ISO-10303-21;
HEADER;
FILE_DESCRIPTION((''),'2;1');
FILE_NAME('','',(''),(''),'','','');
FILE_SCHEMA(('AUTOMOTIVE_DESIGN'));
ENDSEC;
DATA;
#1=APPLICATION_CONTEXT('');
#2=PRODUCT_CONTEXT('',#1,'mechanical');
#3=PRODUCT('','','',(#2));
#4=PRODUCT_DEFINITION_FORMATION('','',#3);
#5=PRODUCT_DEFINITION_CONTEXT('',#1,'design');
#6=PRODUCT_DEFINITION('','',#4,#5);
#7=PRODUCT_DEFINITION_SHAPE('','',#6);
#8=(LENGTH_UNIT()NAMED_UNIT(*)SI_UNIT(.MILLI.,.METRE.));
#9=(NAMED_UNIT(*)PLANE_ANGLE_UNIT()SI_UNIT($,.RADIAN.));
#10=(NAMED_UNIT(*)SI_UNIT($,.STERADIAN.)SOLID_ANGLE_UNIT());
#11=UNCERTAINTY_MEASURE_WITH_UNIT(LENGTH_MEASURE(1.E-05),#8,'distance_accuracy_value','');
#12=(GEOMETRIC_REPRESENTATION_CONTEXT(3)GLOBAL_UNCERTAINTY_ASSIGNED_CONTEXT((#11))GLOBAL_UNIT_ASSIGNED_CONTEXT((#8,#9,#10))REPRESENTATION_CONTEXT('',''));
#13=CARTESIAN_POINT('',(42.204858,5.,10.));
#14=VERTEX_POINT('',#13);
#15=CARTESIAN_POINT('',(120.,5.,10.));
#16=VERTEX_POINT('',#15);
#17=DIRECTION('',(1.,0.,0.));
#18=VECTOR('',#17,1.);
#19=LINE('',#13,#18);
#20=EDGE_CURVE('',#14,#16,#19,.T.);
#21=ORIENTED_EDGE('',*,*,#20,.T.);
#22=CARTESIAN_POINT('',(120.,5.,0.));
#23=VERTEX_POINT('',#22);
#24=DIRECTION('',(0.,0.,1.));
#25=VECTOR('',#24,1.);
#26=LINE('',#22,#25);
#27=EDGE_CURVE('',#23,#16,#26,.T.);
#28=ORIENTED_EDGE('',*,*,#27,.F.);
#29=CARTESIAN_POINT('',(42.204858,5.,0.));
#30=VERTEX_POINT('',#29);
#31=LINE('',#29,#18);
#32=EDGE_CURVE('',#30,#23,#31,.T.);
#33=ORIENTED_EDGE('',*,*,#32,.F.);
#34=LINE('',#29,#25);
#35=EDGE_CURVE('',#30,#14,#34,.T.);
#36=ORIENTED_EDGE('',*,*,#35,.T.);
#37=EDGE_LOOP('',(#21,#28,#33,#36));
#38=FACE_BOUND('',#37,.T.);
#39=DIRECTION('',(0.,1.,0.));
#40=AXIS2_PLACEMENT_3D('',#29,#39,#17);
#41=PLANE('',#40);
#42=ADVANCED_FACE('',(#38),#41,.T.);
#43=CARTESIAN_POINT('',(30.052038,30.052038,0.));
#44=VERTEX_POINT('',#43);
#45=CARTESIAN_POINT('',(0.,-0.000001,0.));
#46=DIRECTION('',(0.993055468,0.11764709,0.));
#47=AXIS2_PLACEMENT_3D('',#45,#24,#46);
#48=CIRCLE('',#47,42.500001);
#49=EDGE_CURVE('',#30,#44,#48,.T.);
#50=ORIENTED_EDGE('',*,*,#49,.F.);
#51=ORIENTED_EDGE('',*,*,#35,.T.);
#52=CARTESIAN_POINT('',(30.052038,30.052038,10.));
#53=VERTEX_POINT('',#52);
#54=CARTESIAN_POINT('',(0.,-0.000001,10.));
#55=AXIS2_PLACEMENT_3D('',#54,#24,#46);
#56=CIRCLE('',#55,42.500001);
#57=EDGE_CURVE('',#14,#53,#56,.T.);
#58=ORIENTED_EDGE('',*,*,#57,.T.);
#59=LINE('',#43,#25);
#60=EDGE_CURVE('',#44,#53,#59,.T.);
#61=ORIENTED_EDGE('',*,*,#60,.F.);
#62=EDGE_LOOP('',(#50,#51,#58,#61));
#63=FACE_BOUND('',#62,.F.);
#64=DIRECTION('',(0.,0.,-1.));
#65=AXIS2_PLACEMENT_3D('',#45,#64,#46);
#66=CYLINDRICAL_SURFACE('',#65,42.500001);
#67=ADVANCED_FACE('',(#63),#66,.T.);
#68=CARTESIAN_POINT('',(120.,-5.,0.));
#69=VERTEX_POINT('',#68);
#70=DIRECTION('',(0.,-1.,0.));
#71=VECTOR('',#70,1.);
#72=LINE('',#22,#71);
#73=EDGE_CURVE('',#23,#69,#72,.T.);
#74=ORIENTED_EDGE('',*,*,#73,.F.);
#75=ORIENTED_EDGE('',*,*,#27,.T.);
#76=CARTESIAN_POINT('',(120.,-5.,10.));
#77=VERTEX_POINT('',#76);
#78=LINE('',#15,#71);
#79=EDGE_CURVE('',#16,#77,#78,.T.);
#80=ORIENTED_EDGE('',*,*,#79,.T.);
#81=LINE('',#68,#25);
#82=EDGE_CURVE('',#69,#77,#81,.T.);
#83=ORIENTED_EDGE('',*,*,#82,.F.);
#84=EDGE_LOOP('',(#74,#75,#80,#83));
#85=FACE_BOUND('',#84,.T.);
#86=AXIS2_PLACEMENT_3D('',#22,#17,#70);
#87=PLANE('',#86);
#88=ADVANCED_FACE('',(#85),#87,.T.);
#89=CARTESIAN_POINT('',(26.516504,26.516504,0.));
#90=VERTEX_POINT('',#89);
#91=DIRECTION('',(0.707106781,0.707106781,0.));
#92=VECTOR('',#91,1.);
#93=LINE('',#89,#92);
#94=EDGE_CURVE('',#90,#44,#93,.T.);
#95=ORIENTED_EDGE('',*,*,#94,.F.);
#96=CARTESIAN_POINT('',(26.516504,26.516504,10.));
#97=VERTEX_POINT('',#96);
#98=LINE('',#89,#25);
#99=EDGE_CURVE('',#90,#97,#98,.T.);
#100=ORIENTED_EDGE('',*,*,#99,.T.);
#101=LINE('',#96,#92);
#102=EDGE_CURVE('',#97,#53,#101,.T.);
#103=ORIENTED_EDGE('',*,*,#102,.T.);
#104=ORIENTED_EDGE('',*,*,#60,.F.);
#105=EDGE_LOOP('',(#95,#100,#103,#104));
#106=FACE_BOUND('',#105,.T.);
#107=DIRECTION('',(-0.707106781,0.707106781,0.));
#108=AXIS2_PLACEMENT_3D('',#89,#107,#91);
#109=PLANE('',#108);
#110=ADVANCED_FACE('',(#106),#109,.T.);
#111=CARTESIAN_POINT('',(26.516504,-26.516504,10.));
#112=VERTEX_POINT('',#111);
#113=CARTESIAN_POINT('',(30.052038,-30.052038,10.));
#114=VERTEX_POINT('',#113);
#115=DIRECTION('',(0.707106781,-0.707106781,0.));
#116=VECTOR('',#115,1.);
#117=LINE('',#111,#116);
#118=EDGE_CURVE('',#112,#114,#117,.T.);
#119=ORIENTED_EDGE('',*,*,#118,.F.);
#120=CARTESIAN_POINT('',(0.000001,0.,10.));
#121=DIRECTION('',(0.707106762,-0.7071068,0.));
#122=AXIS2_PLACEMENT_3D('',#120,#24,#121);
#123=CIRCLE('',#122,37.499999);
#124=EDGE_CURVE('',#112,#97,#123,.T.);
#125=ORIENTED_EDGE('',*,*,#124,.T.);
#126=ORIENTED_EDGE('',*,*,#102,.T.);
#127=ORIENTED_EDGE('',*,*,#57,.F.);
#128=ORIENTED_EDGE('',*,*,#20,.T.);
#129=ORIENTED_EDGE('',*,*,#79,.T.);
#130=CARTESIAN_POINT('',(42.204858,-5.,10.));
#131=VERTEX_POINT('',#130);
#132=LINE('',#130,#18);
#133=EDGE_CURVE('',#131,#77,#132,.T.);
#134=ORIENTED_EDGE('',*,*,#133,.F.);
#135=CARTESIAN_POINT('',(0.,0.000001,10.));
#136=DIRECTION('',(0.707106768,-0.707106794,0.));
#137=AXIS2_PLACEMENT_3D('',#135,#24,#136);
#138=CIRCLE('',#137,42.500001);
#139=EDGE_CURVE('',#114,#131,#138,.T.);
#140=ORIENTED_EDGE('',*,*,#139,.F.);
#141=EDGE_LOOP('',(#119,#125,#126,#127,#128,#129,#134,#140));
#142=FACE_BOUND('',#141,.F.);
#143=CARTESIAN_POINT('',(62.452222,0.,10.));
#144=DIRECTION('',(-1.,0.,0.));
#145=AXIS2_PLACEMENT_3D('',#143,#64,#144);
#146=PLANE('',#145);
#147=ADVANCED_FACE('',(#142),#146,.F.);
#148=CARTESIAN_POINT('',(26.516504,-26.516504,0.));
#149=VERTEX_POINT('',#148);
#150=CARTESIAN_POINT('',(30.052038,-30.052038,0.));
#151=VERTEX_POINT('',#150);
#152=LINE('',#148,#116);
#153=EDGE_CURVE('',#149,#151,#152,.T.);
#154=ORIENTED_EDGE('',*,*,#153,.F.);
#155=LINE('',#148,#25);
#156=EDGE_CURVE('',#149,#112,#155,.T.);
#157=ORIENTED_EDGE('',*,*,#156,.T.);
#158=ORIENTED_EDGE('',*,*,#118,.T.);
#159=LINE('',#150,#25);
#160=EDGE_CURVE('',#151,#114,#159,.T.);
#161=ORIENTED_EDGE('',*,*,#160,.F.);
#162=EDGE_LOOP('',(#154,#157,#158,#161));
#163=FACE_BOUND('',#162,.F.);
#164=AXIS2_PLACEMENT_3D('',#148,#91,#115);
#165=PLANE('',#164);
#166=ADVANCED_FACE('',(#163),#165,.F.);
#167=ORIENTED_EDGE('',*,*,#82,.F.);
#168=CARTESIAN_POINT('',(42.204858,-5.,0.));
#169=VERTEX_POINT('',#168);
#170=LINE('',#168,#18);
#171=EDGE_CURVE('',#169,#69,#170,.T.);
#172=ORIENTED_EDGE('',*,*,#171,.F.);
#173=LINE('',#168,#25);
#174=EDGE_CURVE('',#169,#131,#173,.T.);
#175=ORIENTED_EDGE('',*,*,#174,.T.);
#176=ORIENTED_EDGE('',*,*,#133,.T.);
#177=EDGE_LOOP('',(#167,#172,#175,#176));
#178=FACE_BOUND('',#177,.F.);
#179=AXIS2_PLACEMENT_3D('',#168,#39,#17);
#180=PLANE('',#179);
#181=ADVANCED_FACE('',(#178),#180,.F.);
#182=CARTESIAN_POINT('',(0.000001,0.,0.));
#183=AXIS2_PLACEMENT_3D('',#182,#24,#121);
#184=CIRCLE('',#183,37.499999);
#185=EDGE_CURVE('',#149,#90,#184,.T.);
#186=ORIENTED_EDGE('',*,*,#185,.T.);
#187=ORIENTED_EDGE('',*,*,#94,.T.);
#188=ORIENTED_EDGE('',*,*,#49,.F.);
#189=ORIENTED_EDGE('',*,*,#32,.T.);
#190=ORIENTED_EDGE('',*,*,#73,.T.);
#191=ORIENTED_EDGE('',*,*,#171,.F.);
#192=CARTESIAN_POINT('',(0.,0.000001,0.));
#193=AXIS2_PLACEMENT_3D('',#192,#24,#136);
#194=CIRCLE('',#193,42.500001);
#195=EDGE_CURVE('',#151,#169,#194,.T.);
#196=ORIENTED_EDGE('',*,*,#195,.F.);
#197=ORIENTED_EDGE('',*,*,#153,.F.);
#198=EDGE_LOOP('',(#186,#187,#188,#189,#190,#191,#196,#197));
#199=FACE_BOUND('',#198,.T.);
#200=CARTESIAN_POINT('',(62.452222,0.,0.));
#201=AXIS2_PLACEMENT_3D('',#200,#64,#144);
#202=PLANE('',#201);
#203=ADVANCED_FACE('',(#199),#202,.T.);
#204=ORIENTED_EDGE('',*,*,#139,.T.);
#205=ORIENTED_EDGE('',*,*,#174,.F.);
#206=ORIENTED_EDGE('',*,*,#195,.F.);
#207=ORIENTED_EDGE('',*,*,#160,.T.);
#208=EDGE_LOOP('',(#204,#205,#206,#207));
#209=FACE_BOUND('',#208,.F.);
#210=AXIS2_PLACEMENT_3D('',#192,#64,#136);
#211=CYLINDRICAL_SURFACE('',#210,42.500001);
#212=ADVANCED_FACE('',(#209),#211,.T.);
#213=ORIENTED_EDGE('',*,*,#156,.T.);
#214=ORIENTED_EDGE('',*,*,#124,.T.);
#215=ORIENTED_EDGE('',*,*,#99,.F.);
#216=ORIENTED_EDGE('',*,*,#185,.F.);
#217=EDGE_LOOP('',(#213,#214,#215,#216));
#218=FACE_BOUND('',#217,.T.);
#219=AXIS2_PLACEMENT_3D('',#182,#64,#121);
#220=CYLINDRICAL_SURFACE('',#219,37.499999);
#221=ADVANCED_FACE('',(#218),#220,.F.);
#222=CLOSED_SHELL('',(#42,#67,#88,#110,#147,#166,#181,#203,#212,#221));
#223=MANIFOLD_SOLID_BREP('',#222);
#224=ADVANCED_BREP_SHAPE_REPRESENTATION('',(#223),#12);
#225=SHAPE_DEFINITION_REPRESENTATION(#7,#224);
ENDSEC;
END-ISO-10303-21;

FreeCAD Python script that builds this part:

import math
import FreeCAD as App
import Part
import Sketcher

doc = App.newDocument("Part")
body = doc.addObject("PartDesign::Body", "Body")

sketch1 = body.newObject("Sketcher::SketchObject", "Sketch")
sketch1.AttachmentSupport = (doc.getObject("XY_Plane"), [""])
sketch1.MapMode = "FlatFace"
sketch1.addGeometry([
    Part.ArcOfCircle(Part.Circle(App.Vector(0, 0, 0), App.Vector(0, 0, 1), 37), math.radians(-45), math.radians(45)),
    Part.LineSegment(App.Vector(27, -27, 0), App.Vector(30, -30, 0)),
    Part.ArcOfCircle(Part.Circle(App.Vector(0, 0, 0), App.Vector(0, 0, 1), 43), math.radians(-45), math.radians(-7)),
    Part.LineSegment(App.Vector(42, -5, 0), App.Vector(120, -5, 0)),
    Part.LineSegment(App.Vector(120, -5, 0), App.Vector(120, 5, 0)),
    Part.LineSegment(App.Vector(120, 5, 0), App.Vector(42, 5, 0)),
    Part.ArcOfCircle(Part.Circle(App.Vector(0, 0, 0), App.Vector(0, 0, 1), 43), math.radians(7), math.radians(45)),
    Part.LineSegment(App.Vector(30, 30, 0), App.Vector(27, 27, 0)),
], False)
sketch1.addConstraint([
    Sketcher.Constraint("Coincident", 0, 1, 1, 1),
    Sketcher.Constraint("Coincident", 1, 2, 2, 1),
    Sketcher.Constraint("Coincident", 2, 2, 3, 1),
    Sketcher.Constraint("Coincident", 3, 2, 4, 1),
    Sketcher.Constraint("Coincident", 4, 2, 5, 1),
    Sketcher.Constraint("Coincident", 5, 2, 6, 1),
    Sketcher.Constraint("Coincident", 6, 2, 7, 1),
    Sketcher.Constraint("Coincident", 7, 2, 0, 2),
    Sketcher.Constraint("Horizontal", 3),
    Sketcher.Constraint("Vertical", 4),
    Sketcher.Constraint("Horizontal", 5),
    Sketcher.Constraint("Coincident", 0, 3, -1, 1),
    Sketcher.Constraint("Coincident", 2, 3, -1, 1),
    Sketcher.Constraint("Coincident", 6, 3, -1, 1),
    Sketcher.Constraint("Equal", 2, 6),
    Sketcher.Constraint("Perpendicular", 1, 7),
    Sketcher.Constraint("Vertical", 2, 2, 5, 2),
    Sketcher.Constraint("Vertical", 1, 2, 6, 2),
    Sketcher.Constraint("Vertical", 0, 1, 7, 2),
    Sketcher.Constraint("Radius", 0, 37.499999),
    Sketcher.Constraint("Radius", 2, 42.500001),
    Sketcher.Constraint("DistanceY", 4, 1, 4, 2, 10.0),
    Sketcher.Constraint("DistanceX", -1, 1, 3, 2, 120.0),
    Sketcher.Constraint("DistanceX", 6, 3, 1, 2, 30.052038),
])
pad1 = body.newObject("PartDesign::Pad", "Pad")
pad1.Profile = sketch1
pad1.Length = 10

doc.recompute()
